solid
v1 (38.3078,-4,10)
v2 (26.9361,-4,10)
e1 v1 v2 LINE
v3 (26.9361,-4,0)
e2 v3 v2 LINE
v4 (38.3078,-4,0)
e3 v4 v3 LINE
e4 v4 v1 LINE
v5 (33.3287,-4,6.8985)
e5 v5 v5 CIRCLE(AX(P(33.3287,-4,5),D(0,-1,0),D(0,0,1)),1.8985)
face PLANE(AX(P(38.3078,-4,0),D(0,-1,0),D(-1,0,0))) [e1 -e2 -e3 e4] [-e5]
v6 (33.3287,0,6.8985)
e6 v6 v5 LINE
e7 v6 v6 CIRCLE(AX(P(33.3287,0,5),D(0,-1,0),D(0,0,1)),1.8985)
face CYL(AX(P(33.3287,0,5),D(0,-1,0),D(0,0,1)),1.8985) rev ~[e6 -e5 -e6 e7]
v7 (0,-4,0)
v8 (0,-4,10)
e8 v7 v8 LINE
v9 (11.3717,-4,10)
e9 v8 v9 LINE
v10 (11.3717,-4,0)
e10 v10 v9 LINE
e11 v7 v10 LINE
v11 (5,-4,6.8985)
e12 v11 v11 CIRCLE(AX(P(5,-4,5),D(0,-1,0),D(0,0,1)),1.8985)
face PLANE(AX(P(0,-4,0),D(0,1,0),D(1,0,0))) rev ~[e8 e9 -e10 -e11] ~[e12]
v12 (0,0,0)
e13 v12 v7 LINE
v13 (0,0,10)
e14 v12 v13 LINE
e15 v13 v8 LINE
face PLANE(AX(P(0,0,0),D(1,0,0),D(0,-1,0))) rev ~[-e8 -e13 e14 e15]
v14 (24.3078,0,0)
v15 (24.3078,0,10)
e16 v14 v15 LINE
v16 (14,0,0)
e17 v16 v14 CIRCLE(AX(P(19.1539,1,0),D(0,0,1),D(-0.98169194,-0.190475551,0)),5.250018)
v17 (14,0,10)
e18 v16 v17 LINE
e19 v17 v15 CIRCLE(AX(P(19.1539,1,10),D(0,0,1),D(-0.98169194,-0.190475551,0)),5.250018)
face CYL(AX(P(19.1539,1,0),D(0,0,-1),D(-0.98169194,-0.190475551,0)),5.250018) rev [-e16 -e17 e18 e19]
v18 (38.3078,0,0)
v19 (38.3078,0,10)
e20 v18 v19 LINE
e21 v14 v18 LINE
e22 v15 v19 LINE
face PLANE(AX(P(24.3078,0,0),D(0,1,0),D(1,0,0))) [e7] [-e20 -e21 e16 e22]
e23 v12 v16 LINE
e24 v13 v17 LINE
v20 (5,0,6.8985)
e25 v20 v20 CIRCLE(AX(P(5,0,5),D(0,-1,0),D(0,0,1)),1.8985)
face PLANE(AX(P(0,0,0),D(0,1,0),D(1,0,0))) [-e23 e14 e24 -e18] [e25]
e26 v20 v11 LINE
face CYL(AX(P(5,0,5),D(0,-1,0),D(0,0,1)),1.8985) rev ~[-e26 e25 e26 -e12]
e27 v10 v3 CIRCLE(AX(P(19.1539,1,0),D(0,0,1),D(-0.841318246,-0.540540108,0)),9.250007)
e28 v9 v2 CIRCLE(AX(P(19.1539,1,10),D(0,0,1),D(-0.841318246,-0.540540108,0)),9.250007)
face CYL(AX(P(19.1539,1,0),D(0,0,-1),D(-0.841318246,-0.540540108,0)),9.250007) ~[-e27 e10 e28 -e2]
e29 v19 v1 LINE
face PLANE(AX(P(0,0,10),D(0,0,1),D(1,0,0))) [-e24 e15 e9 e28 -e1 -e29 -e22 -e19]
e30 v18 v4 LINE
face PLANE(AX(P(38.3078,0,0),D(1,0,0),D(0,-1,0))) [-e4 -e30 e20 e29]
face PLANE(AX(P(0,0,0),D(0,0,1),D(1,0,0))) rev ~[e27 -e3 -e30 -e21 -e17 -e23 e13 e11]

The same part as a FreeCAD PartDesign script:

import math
import FreeCAD as App
import Part
import Sketcher

V = App.Vector
Q = App.Units.Quantity

doc = App.newDocument("Part")
body = doc.addObject("PartDesign::Body", "Body")

sketch1 = body.newObject("Sketcher::SketchObject", "Sketch")
sketch1.AttachmentSupport = (doc.getObject("XY_Plane"), [""])
sketch1.MapMode = "FlatFace"
sketch1.addGeometry([
    Part.LineSegment(V(14, 0, 0), V(0, 0, 0)),
    Part.LineSegment(V(0, 0, 0), V(0, -4, 0)),
    Part.LineSegment(V(0, -4, 0), V(11.3717, -4, 0)),
    Part.ArcOfCircle(Part.Circle(V(19.1539, 1, 0), V(0, 0, 1), 9.250007), math.radians(-147.279586), math.radians(-32.720414)),
    Part.LineSegment(V(26.9361, -4, 0), V(38.3078, -4, 0)),
    Part.LineSegment(V(38.3078, -4, 0), V(38.3078, 0, 0)),
    Part.LineSegment(V(38.3078, 0, 0), V(24.3078, 0, 0)),
    Part.ArcOfCircle(Part.Circle(V(19.1539, 1, 0), V(0, 0, 1), 5.250018), math.radians(-169.019462), math.radians(-10.980538)),
], False)
sketch1.addConstraint([
    Sketcher.Constraint("Coincident", 0, 2, 1, 1),
    Sketcher.Constraint("Coincident", 1, 2, 2, 1),
    Sketcher.Constraint("Coincident", 2, 2, 3, 1),
    Sketcher.Constraint("Coincident", 3, 2, 4, 1),
    Sketcher.Constraint("Coincident", 4, 2, 5, 1),
    Sketcher.Constraint("Coincident", 5, 2, 6, 1),
    Sketcher.Constraint("Coincident", 6, 2, 7, 2),
    Sketcher.Constraint("Coincident", 7, 1, 0, 1),
    Sketcher.Constraint("Horizontal", 0),
    Sketcher.Constraint("Vertical", 1),
    Sketcher.Constraint("Horizontal", 2),
    Sketcher.Constraint("Horizontal", 4),
    Sketcher.Constraint("Vertical", 5),
    Sketcher.Constraint("Horizontal", 6),
    Sketcher.Constraint("Coincident", 0, 2, -1, 1),
    Sketcher.Constraint("Coincident", 7, 3, 3, 3),
    Sketcher.Constraint("PointOnObject", 5, 2, -1),
    Sketcher.Constraint("Horizontal", 2, 2, 3, 2),
    Sketcher.Constraint("Equal", 2, 4),
    Sketcher.Constraint("DistanceX", 0, 2, 0, 1, Q("14 mm")),
    Sketcher.Constraint("DistanceY", 1, 2, 1, 1, Q("4 mm")),
    Sketcher.Constraint("Radius", 3, Q("9.25 mm")),
    Sketcher.Constraint("Radius", 7, Q("5.25 mm")),
    Sketcher.Constraint("DistanceY", -1, 1, 3, 3, Q("1 mm")),
])
pad1 = body.newObject("PartDesign::Pad", "Pad")
pad1.Profile = sketch1
pad1.Length = 10

sketch2 = body.newObject("Sketcher::SketchObject", "Sketch001")
sketch2.AttachmentSupport = (doc.getObject("XZ_Plane"), [""])
sketch2.MapMode = "FlatFace"
sketch2.addGeometry([
    Part.Circle(V(5, 5, 0), V(0, 0, 1), 1.8985),
    Part.Circle(V(33.3287, 5, 0), V(0, 0, 1), 1.8985),
    Part.Circle(V(43.3182, 5, 0), V(0, 0, 1), 1.8985),
], False)
sketch2.addConstraint([
    Sketcher.Constraint("Equal", 0, 1),
    Sketcher.Constraint("Equal", 1, 2),
    Sketcher.Constraint("Horizontal", 0, 3, 1, 3),
    Sketcher.Constraint("Horizontal", 1, 3, 2, 3),
    Sketcher.Constraint("Diameter", 0, Q("3.797 mm")),
    Sketcher.Constraint("DistanceX", -1, 1, 0, 3, Q("5 mm")),
    Sketcher.Constraint("DistanceY", -1, 1, 0, 3, Q("5 mm")),
    Sketcher.Constraint("DistanceX", -1, 1, 1, 3, Q("33.3287 mm")),
    Sketcher.Constraint("DistanceX", -1, 1, 2, 3, Q("43.3182 mm")),
])
doc.recompute()
hole = body.newObject("PartDesign::Hole", "Hole")
hole.Profile = sketch2
hole.ThreadType = "None"
hole.Diameter = 3.797
hole.DepthType = "ThroughAll"
hole.Reversed = True

doc.recompute()
